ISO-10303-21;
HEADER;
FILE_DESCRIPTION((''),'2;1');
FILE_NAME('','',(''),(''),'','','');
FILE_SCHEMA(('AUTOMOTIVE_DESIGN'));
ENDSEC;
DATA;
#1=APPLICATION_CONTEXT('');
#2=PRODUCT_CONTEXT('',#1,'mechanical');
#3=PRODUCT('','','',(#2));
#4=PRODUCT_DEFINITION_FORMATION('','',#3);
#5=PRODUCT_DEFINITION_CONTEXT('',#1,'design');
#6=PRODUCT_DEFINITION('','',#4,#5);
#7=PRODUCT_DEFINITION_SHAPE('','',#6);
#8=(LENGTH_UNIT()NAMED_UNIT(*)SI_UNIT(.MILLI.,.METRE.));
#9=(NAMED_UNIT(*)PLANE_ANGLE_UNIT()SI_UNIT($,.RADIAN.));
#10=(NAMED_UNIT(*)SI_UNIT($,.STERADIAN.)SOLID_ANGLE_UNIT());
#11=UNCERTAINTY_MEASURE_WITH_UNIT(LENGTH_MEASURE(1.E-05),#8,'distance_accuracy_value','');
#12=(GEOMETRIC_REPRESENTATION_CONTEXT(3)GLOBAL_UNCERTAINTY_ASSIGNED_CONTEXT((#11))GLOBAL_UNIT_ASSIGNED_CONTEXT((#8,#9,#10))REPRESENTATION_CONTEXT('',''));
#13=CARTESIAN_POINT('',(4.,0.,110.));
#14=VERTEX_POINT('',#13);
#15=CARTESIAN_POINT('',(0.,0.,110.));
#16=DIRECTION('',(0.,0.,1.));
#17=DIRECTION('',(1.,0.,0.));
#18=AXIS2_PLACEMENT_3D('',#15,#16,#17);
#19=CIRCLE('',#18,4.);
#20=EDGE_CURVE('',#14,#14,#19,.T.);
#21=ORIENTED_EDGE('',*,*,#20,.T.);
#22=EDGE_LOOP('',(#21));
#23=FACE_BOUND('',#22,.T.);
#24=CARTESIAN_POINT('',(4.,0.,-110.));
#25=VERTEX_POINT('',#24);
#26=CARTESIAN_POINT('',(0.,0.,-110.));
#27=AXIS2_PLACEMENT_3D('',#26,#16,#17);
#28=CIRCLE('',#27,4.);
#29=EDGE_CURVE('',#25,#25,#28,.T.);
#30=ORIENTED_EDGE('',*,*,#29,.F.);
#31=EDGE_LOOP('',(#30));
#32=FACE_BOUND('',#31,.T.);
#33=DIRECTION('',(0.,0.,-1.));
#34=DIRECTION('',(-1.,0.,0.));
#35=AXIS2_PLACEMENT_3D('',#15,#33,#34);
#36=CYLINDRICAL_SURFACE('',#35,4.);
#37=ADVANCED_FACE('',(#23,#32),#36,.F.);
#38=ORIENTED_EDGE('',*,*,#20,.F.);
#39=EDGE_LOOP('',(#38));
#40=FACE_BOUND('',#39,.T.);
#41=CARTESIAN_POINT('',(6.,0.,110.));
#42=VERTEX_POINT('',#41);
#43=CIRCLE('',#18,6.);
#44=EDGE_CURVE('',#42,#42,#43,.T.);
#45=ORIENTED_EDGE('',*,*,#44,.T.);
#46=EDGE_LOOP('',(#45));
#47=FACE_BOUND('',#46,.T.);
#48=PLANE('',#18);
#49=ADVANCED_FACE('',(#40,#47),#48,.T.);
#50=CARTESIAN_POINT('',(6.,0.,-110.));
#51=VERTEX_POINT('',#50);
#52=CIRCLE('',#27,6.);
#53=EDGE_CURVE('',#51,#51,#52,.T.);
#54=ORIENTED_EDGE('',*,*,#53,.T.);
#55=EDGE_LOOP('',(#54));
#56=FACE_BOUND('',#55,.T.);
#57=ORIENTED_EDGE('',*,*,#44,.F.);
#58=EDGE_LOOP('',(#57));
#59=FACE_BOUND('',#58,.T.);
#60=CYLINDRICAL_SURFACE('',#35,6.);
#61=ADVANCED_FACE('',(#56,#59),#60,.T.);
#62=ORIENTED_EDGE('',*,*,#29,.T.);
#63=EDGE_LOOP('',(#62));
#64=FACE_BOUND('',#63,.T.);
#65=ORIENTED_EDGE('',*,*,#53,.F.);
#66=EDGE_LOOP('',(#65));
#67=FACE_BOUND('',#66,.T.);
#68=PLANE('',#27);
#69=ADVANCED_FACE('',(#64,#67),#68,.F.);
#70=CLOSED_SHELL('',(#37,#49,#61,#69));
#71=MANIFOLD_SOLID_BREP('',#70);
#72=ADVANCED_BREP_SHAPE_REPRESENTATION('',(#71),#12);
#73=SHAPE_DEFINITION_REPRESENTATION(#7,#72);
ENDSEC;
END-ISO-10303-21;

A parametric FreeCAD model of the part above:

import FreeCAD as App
import Part
import Sketcher
from FreeCAD import Vector

doc = App.newDocument("Part")
body = doc.addObject("PartDesign::Body", "Body")

# Sketch on XY plane
sketch1 = doc.addObject("Sketcher::SketchObject", "Sketch")
body.addObject(sketch1)
sketch1.AttachmentSupport = (doc.XY_Plane, [""])
sketch1.MapMode = "FlatFace"
sketch1.addGeometry([
    Part.Circle(Vector(0, 0, 0), Vector(0, 0, 1), 6),
    Part.Circle(Vector(0, 0, 0), Vector(0, 0, 1), 4),
], False)
sketch1.addConstraint([
    Sketcher.Constraint("Coincident", 0, 3, -1, 1),
    Sketcher.Constraint("Coincident", 1, 3, -1, 1),
    Sketcher.Constraint("Diameter", 0, 12.0),
    Sketcher.Constraint("Diameter", 1, 8.0),
])
pad1 = doc.addObject("PartDesign::Pad", "Pad")
body.addObject(pad1)
pad1.Profile = sketch1
pad1.Length = 220
pad1.Midplane = True

doc.recompute()
